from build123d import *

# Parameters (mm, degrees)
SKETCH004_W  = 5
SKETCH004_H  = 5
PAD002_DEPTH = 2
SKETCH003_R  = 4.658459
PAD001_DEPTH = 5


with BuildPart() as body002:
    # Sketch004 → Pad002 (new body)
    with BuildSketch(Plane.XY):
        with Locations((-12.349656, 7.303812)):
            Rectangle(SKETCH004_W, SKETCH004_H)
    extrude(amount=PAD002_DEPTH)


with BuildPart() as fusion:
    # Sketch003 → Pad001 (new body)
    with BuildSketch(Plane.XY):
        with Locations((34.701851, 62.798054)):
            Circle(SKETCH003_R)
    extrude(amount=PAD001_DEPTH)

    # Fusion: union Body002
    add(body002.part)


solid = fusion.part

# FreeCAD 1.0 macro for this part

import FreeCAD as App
import Part
import Sketcher
from FreeCAD import Vector

doc = App.newDocument("Part")
body = doc.addObject("PartDesign::Body", "Body")

# Sketch on XY plane
sketch1 = body.newObject("Sketcher::SketchObject", "Sketch")
sketch1.AttachmentSupport = (doc.getObject("XY_Plane"), [""])
sketch1.MapMode = "FlatFace"
sketch1.addGeometry(Part.LineSegment(Vector(-15, 10, 0), Vector(-15, 5, 0)), False)
sketch1.addGeometry(Part.LineSegment(Vector(-15, 5, 0), Vector(-10, 5, 0)), False)
sketch1.addGeometry(Part.LineSegment(Vector(-10, 5, 0), Vector(-10, 10, 0)), False)
sketch1.addGeometry(Part.LineSegment(Vector(-10, 10, 0), Vector(-15, 10, 0)), False)
sketch1.addConstraint(Sketcher.Constraint("Coincident", 0, 2, 1, 1))
sketch1.addConstraint(Sketcher.Constraint("Coincident", 1, 2, 2, 1))
sketch1.addConstraint(Sketcher.Constraint("Coincident", 2, 2, 3, 1))
sketch1.addConstraint(Sketcher.Constraint("Coincident", 3, 2, 0, 1))
sketch1.addConstraint(Sketcher.Constraint("Vertical", 0))
sketch1.addConstraint(Sketcher.Constraint("Horizontal", 1))
sketch1.addConstraint(Sketcher.Constraint("Vertical", 2))
sketch1.addConstraint(Sketcher.Constraint("Horizontal", 3))
sketch1.addConstraint(Sketcher.Constraint("Equal", 3, 0))
sketch1.addConstraint(Sketcher.Constraint("DistanceX", 1, 1, 1, 2, 5.0))
sketch1.addConstraint(Sketcher.Constraint("DistanceY", -1, 1, 0, 2, 4.803812))
sketch1.addConstraint(Sketcher.Constraint("DistanceX", 0, 2, -1, 1, 14.849656))
pad1 = body.newObject("PartDesign::Pad", "Pad")
pad1.Profile = sketch1
pad1.Length = 2
body2 = doc.addObject("PartDesign::Body", "Body001")
body2.AllowCompound = True

# Sketch on XY plane
sketch2 = body2.newObject("Sketcher::SketchObject", "Sketch001")
sketch2.AttachmentSupport = (doc.getObject("XY_Plane001"), [""])
sketch2.MapMode = "FlatFace"
sketch2.addGeometry(Part.Circle(Vector(34.7, 62.8, 0), Vector(0, 0, 1), 4.7), False)
sketch2.addConstraint(Sketcher.Constraint("Diameter", 0, 9.316918))
sketch2.addConstraint(Sketcher.Constraint("DistanceX", -1, 1, 0, 3, 34.701851))
sketch2.addConstraint(Sketcher.Constraint("DistanceY", -1, 1, 0, 3, 62.798054))
pad2 = body2.newObject("PartDesign::Pad", "Pad001")
pad2.Profile = sketch2
pad2.Length = 5
doc.recompute()

boolean = body2.newObject("PartDesign::Boolean", "Boolean")
boolean.Type = "Fuse"
boolean.addObjects([body])

doc.recompute()
